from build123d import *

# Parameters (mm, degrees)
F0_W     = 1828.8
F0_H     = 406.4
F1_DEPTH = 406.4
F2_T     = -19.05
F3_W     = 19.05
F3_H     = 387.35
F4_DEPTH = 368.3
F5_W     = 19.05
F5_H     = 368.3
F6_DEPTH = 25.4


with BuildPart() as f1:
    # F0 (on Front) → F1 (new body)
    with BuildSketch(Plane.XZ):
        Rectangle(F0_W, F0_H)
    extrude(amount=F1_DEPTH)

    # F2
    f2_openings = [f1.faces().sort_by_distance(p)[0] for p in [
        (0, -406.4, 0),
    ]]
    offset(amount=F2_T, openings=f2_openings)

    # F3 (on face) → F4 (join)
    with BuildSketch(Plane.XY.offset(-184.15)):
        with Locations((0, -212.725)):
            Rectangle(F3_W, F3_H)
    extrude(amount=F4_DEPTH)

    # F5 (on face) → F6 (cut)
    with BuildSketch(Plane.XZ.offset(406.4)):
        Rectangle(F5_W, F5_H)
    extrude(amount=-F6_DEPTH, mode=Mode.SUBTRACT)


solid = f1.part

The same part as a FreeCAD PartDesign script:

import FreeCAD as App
import Part
import Sketcher
Q = App.Units.Quantity


def faces_at(feature, points):
    """Names of the faces that lie closest to the given points."""
    faces = feature.Shape.Faces
    near = lambda p: min(range(len(faces)), key=lambda i: faces[i].distToShape(Part.Vertex(*p))[0])
    return sorted({f"Face{near(p) + 1}" for p in points})


def add_polygon(sketch, points):
    """Adds a closed chain of lines whose ends are joined by coincident constraints."""
    first, n = sketch.GeometryCount, len(points)
    for a, b in zip(points, points[1:] + points[:1]):
        sketch.addGeometry(Part.LineSegment(App.Vector(*a, 0), App.Vector(*b, 0)), False)
    for i in range(n):
        sketch.addConstraint(Sketcher.Constraint("Coincident", first + i, 2, first + (i + 1) % n, 1))

doc = App.newDocument("Part")
params = doc.addObject("Spreadsheet::Sheet", "Params")
for row, (alias, value) in enumerate([
    ("sketch1_width", "72 in"),
    ("sketch1_height", "16 in"),
    ("pad1_length", "16 in"),
    ("thickness_wall", "0.75 in"),
    ("sketch2_width", "0.75 in"),
    ("sketch2_height", "15.25 in"),
    ("pad2_length", "14.5 in"),
    ("sketch3_height", "14.5 in"),
    ("sketch3_width", "0.75 in"),
    ("pocket1_length", "1 in"),
], start=1):
    params.set(f"A{row}", alias)
    params.set(f"B{row}", "=" + value)
    params.setAlias(f"B{row}", alias)

body = doc.addObject("PartDesign::Body", "Body")

# Sketch on XZ plane
sketch1 = doc.addObject("Sketcher::SketchObject", "Sketch")
body.addObject(sketch1)
sketch1.AttachmentSupport = (doc.XZ_Plane, [""])
sketch1.MapMode = "FlatFace"
add_polygon(sketch1, [(-914, 203), (-914, -203), (914, -203), (914, 203)])  # lines 0-3
sketch1.addConstraint([
    Sketcher.Constraint("Vertical", 0),
    Sketcher.Constraint("Horizontal", 1),
    Sketcher.Constraint("Vertical", 2),
    Sketcher.Constraint("Horizontal", 3),
    Sketcher.Constraint("Symmetric", 0, 2, 2, 2, -1, 1),
    Sketcher.Constraint("DistanceX", 1, 1, 1, 2, Q("72 in")),
    Sketcher.Constraint("DistanceY", 0, 2, 0, 1, Q("16 in")),
])
sketch1.setExpression("Constraints[9]", "Params.sketch1_width")
sketch1.setExpression("Constraints[10]", "Params.sketch1_height")
pad1 = doc.addObject("PartDesign::Pad", "Pad")
body.addObject(pad1)
pad1.Profile = sketch1
pad1.setExpression("Length", "Params.pad1_length")
doc.recompute()

thickness = doc.addObject("PartDesign::Thickness", "Thickness")
body.addObject(thickness)
thickness.Base = (pad1, faces_at(pad1, [(0, -406.4, 0)]))
thickness.setExpression("Value", "Params.thickness_wall")
thickness.Reversed = True
thickness.Join = "Arc"

# Sketch on XY plane
sketch2 = doc.addObject("Sketcher::SketchObject", "Sketch001")
body.addObject(sketch2)
sketch2.AttachmentSupport = (doc.XY_Plane, [""])
sketch2.MapMode = "FlatFace"
sketch2.AttachmentOffset = App.Placement(App.Vector(0, 0, -7.25 * 25.4), App.Rotation())
add_polygon(sketch2, [(-10, -19), (-10, -406), (10, -406), (10, -19)])  # lines 0-3
sketch2.addConstraint([
    Sketcher.Constraint("Vertical", 0),
    Sketcher.Constraint("Horizontal", 1),
    Sketcher.Constraint("Vertical", 2),
    Sketcher.Constraint("Horizontal", 3),
    Sketcher.Constraint("DistanceY", 0, 2, -1, 1, Q("16 in")),
    Sketcher.Constraint("DistanceX", 1, 1, 1, 2, Q("0.75 in")),
    Sketcher.Constraint("DistanceY", 0, 2, 0, 1, Q("15.25 in")),
    Sketcher.Constraint("DistanceX", 0, 2, -1, 1, Q("0.375 in")),
])
sketch2.setExpression("Constraints[9]", "Params.sketch2_width")
sketch2.setExpression("Constraints[10]", "Params.sketch2_height")
pad2 = doc.addObject("PartDesign::Pad", "Pad001")
body.addObject(pad2)
pad2.Profile = sketch2
pad2.setExpression("Length", "Params.pad2_length")

# Sketch on XZ plane
sketch3 = doc.addObject("Sketcher::SketchObject", "Sketch002")
body.addObject(sketch3)
sketch3.AttachmentSupport = (doc.XZ_Plane, [""])
sketch3.MapMode = "FlatFace"
sketch3.AttachmentOffset = App.Placement(App.Vector(0, 0, 16 * 25.4), App.Rotation())
add_polygon(sketch3, [(-10, 184), (-10, -184), (10, -184), (10, 184)])  # lines 0-3
sketch3.addConstraint([
    Sketcher.Constraint("Vertical", 0),
    Sketcher.Constraint("Horizontal", 1),
    Sketcher.Constraint("Vertical", 2),
    Sketcher.Constraint("Horizontal", 3),
    Sketcher.Constraint("Symmetric", 0, 2, 2, 2, -1, 1),
    Sketcher.Constraint("DistanceY", 0, 2, 0, 1, Q("14.5 in")),
    Sketcher.Constraint("DistanceX", 1, 1, 1, 2, Q("0.75 in")),
])
sketch3.setExpression("Constraints[9]", "Params.sketch3_height")
sketch3.setExpression("Constraints[10]", "Params.sketch3_width")
pocket1 = doc.addObject("PartDesign::Pocket", "Pocket")
body.addObject(pocket1)
pocket1.Profile = sketch3
pocket1.setExpression("Length", "Params.pocket1_length")

doc.recompute()
